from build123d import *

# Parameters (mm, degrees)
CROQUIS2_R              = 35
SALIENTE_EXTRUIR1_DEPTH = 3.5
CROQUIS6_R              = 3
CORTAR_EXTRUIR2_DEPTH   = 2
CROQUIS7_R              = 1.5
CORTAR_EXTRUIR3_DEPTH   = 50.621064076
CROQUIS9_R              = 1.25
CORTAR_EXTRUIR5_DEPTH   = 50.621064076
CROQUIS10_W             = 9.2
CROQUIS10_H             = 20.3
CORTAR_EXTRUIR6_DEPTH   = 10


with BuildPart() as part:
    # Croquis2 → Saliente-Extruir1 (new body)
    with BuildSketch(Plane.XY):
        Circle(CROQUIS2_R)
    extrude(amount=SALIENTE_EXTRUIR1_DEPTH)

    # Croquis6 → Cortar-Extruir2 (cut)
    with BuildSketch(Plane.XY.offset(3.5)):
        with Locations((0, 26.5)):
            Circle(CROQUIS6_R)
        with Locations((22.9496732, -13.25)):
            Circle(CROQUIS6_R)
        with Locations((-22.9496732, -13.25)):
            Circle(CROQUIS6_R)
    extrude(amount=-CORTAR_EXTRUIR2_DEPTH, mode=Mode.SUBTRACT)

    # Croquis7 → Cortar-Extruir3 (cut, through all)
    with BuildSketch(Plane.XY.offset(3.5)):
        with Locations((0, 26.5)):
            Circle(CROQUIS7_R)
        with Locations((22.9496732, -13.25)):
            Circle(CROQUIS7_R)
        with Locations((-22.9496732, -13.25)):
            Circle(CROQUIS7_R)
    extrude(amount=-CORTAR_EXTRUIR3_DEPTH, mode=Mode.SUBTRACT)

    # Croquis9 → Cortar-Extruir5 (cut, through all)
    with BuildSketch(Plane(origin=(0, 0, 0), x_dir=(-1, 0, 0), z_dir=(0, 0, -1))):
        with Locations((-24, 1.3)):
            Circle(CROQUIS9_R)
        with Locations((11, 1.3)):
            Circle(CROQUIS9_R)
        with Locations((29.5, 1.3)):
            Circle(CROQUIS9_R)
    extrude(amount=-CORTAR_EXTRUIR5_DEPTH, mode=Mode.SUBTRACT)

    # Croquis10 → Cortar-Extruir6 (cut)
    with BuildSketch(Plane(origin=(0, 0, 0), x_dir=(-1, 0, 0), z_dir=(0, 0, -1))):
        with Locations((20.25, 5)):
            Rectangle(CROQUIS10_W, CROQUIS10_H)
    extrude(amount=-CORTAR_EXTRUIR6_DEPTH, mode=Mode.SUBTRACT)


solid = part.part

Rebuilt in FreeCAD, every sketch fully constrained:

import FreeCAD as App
import Part
import Sketcher

V = App.Vector

doc = App.newDocument("Part")
params = doc.addObject("Spreadsheet::Sheet", "Params")
for row, (alias, value) in enumerate([
    ("sketch1_diameter", "70 mm"),
    ("pad1_length", "3.5 mm"),
    ("sketch2_diameter", "6 mm"),
    ("pocket1_length", "2 mm"),
    ("sketch3_diameter", "3 mm"),
    ("sketch4_diameter", "2.5 mm"),
    ("sketch5_width", "9.2 mm"),
    ("sketch5_height", "20.3 mm"),
    ("pocket4_length", "10 mm"),
], start=1):
    params.set(f"A{row}", alias)
    params.set(f"B{row}", "=" + value)
    params.setAlias(f"B{row}", alias)

body = doc.addObject("PartDesign::Body", "Body")

# Sketch on XY plane
sketch1 = body.newObject("Sketcher::SketchObject", "Sketch")
sketch1.AttachmentSupport = (doc.getObject("XY_Plane"), [""])
sketch1.MapMode = "FlatFace"
sketch1.addGeometry(Part.Circle(V(0, 0, 0), V(0, 0, 1), 35), False)
sketch1.addConstraint(Sketcher.Constraint("Coincident", 0, 3, -1, 1))
sketch1.addConstraint(Sketcher.Constraint("Diameter", 0, 70.0))
sketch1.setExpression("Constraints[1]", "Params.sketch1_diameter")
pad1 = body.newObject("PartDesign::Pad", "Pad")
pad1.Profile = sketch1
pad1.setExpression("Length", "Params.pad1_length")

# Sketch on XY plane
sketch2 = body.newObject("Sketcher::SketchObject", "Sketch001")
sketch2.AttachmentSupport = (doc.getObject("XY_Plane"), [""])
sketch2.MapMode = "FlatFace"
sketch2.AttachmentOffset = App.Placement(V(0, 0, 3.5), App.Rotation())
sketch2.addGeometry(Part.Circle(V(0, 26.5, 0), V(0, 0, 1), 3), False)
sketch2.addGeometry(Part.Circle(V(22.949673, -13.25, 0), V(0, 0, 1), 3), False)
sketch2.addGeometry(Part.Circle(V(-22.949673, -13.25, 0), V(0, 0, 1), 3), False)
sketch2.addConstraint(Sketcher.Constraint("Equal", 0, 1))
sketch2.addConstraint(Sketcher.Constraint("Equal", 1, 2))
sketch2.addConstraint(Sketcher.Constraint("Symmetric", 1, 3, 2, 3, -2))
sketch2.addConstraint(Sketcher.Constraint("PointOnObject", 0, 3, -2))
sketch2.addConstraint(Sketcher.Constraint("Diameter", 0, 6.0))
sketch2.addConstraint(Sketcher.Constraint("DistanceY", -1, 1, 0, 3, 26.5))
sketch2.addConstraint(Sketcher.Constraint("DistanceY", 1, 3, -1, 1, 13.25))
sketch2.addConstraint(Sketcher.Constraint("DistanceX", -1, 1, 1, 3, 22.949673))
sketch2.setExpression("Constraints[4]", "Params.sketch2_diameter")
pocket1 = body.newObject("PartDesign::Pocket", "Pocket")
pocket1.Profile = sketch2
pocket1.setExpression("Length", "Params.pocket1_length")

# Sketch on XY plane
sketch3 = body.newObject("Sketcher::SketchObject", "Sketch002")
sketch3.AttachmentSupport = (doc.getObject("XY_Plane"), [""])
sketch3.MapMode = "FlatFace"
sketch3.AttachmentOffset = App.Placement(V(0, 0, 3.5), App.Rotation())
sketch3.addGeometry(Part.Circle(V(0, 26.5, 0), V(0, 0, 1), 1.5), False)
sketch3.addGeometry(Part.Circle(V(22.949673, -13.25, 0), V(0, 0, 1), 1.5), False)
sketch3.addGeometry(Part.Circle(V(-22.949673, -13.25, 0), V(0, 0, 1), 1.5), False)
sketch3.addConstraint(Sketcher.Constraint("Equal", 0, 1))
sketch3.addConstraint(Sketcher.Constraint("Equal", 1, 2))
sketch3.addConstraint(Sketcher.Constraint("Symmetric", 1, 3, 2, 3, -2))
sketch3.addConstraint(Sketcher.Constraint("PointOnObject", 0, 3, -2))
sketch3.addConstraint(Sketcher.Constraint("Diameter", 0, 3.0))
sketch3.addConstraint(Sketcher.Constraint("DistanceY", -1, 1, 0, 3, 26.5))
sketch3.addConstraint(Sketcher.Constraint("DistanceY", 1, 3, -1, 1, 13.25))
sketch3.addConstraint(Sketcher.Constraint("DistanceX", -1, 1, 1, 3, 22.949673))
sketch3.setExpression("Constraints[4]", "Params.sketch3_diameter")
pocket2 = body.newObject("PartDesign::Pocket", "Pocket001")
pocket2.Profile = sketch3
pocket2.Type = "ThroughAll"

# Sketch on XY plane
sketch4 = body.newObject("Sketcher::SketchObject", "Sketch003")
sketch4.AttachmentSupport = (doc.getObject("XY_Plane"), [""])
sketch4.MapMode = "FlatFace"
sketch4.addGeometry(Part.Circle(V(24, 1.3, 0), V(0, 0, 1), 1.25), False)
sketch4.addGeometry(Part.Circle(V(-11, 1.3, 0), V(0, 0, 1), 1.25), False)
sketch4.addGeometry(Part.Circle(V(-29.5, 1.3, 0), V(0, 0, 1), 1.25), False)
sketch4.addConstraint(Sketcher.Constraint("Equal", 0, 1))
sketch4.addConstraint(Sketcher.Constraint("Equal", 1, 2))
sketch4.addConstraint(Sketcher.Constraint("Horizontal", 0, 3, 1, 3))
sketch4.addConstraint(Sketcher.Constraint("Horizontal", 1, 3, 2, 3))
sketch4.addConstraint(Sketcher.Constraint("Diameter", 0, 2.5))
sketch4.addConstraint(Sketcher.Constraint("DistanceX", -1, 1, 0, 3, 24.0))
sketch4.addConstraint(Sketcher.Constraint("DistanceX", 1, 3, -1, 1, 11.0))
sketch4.addConstraint(Sketcher.Constraint("DistanceY", -1, 1, 0, 3, 1.3))
sketch4.addConstraint(Sketcher.Constraint("DistanceX", 2, 3, -1, 1, 29.5))
sketch4.setExpression("Constraints[4]", "Params.sketch4_diameter")
pocket3 = body.newObject("PartDesign::Pocket", "Pocket002")
pocket3.Profile = sketch4
pocket3.Type = "ThroughAll"
pocket3.Reversed = True

# Sketch on XY plane
sketch5 = body.newObject("Sketcher::SketchObject", "Sketch004")
sketch5.AttachmentSupport = (doc.getObject("XY_Plane"), [""])
sketch5.MapMode = "FlatFace"
sketch5.addGeometry(Part.LineSegment(V(-15.65, 15.15, 0), V(-15.65, -5.15, 0)), False)
sketch5.addGeometry(Part.LineSegment(V(-15.65, -5.15, 0), V(-24.85, -5.15, 0)), False)
sketch5.addGeometry(Part.LineSegment(V(-24.85, -5.15, 0), V(-24.85, 15.15, 0)), False)
sketch5.addGeometry(Part.LineSegment(V(-24.85, 15.15, 0), V(-15.65, 15.15, 0)), False)
sketch5.addConstraint(Sketcher.Constraint("Coincident", 0, 2, 1, 1))
sketch5.addConstraint(Sketcher.Constraint("Coincident", 1, 2, 2, 1))
sketch5.addConstraint(Sketcher.Constraint("Coincident", 2, 2, 3, 1))
sketch5.addConstraint(Sketcher.Constraint("Coincident", 3, 2, 0, 1))
sketch5.addConstraint(Sketcher.Constraint("Vertical", 0))
sketch5.addConstraint(Sketcher.Constraint("Horizontal", 1))
sketch5.addConstraint(Sketcher.Constraint("Vertical", 2))
sketch5.addConstraint(Sketcher.Constraint("Horizontal", 3))
sketch5.addConstraint(Sketcher.Constraint("DistanceX", 1, 2, 1, 1, 9.2))
sketch5.addConstraint(Sketcher.Constraint("DistanceY", 0, 2, 0, 1, 20.3))
sketch5.addConstraint(Sketcher.Constraint("DistanceX", 0, 2, -1, 1, 15.65))
sketch5.addConstraint(Sketcher.Constraint("DistanceY", 0, 2, -1, 1, 5.15))
sketch5.setExpression("Constraints[8]", "Params.sketch5_width")
sketch5.setExpression("Constraints[9]", "Params.sketch5_height")
pocket4 = body.newObject("PartDesign::Pocket", "Pocket003")
pocket4.Profile = sketch5
pocket4.setExpression("Length", "Params.pocket4_length")
pocket4.Reversed = True

doc.recompute()
